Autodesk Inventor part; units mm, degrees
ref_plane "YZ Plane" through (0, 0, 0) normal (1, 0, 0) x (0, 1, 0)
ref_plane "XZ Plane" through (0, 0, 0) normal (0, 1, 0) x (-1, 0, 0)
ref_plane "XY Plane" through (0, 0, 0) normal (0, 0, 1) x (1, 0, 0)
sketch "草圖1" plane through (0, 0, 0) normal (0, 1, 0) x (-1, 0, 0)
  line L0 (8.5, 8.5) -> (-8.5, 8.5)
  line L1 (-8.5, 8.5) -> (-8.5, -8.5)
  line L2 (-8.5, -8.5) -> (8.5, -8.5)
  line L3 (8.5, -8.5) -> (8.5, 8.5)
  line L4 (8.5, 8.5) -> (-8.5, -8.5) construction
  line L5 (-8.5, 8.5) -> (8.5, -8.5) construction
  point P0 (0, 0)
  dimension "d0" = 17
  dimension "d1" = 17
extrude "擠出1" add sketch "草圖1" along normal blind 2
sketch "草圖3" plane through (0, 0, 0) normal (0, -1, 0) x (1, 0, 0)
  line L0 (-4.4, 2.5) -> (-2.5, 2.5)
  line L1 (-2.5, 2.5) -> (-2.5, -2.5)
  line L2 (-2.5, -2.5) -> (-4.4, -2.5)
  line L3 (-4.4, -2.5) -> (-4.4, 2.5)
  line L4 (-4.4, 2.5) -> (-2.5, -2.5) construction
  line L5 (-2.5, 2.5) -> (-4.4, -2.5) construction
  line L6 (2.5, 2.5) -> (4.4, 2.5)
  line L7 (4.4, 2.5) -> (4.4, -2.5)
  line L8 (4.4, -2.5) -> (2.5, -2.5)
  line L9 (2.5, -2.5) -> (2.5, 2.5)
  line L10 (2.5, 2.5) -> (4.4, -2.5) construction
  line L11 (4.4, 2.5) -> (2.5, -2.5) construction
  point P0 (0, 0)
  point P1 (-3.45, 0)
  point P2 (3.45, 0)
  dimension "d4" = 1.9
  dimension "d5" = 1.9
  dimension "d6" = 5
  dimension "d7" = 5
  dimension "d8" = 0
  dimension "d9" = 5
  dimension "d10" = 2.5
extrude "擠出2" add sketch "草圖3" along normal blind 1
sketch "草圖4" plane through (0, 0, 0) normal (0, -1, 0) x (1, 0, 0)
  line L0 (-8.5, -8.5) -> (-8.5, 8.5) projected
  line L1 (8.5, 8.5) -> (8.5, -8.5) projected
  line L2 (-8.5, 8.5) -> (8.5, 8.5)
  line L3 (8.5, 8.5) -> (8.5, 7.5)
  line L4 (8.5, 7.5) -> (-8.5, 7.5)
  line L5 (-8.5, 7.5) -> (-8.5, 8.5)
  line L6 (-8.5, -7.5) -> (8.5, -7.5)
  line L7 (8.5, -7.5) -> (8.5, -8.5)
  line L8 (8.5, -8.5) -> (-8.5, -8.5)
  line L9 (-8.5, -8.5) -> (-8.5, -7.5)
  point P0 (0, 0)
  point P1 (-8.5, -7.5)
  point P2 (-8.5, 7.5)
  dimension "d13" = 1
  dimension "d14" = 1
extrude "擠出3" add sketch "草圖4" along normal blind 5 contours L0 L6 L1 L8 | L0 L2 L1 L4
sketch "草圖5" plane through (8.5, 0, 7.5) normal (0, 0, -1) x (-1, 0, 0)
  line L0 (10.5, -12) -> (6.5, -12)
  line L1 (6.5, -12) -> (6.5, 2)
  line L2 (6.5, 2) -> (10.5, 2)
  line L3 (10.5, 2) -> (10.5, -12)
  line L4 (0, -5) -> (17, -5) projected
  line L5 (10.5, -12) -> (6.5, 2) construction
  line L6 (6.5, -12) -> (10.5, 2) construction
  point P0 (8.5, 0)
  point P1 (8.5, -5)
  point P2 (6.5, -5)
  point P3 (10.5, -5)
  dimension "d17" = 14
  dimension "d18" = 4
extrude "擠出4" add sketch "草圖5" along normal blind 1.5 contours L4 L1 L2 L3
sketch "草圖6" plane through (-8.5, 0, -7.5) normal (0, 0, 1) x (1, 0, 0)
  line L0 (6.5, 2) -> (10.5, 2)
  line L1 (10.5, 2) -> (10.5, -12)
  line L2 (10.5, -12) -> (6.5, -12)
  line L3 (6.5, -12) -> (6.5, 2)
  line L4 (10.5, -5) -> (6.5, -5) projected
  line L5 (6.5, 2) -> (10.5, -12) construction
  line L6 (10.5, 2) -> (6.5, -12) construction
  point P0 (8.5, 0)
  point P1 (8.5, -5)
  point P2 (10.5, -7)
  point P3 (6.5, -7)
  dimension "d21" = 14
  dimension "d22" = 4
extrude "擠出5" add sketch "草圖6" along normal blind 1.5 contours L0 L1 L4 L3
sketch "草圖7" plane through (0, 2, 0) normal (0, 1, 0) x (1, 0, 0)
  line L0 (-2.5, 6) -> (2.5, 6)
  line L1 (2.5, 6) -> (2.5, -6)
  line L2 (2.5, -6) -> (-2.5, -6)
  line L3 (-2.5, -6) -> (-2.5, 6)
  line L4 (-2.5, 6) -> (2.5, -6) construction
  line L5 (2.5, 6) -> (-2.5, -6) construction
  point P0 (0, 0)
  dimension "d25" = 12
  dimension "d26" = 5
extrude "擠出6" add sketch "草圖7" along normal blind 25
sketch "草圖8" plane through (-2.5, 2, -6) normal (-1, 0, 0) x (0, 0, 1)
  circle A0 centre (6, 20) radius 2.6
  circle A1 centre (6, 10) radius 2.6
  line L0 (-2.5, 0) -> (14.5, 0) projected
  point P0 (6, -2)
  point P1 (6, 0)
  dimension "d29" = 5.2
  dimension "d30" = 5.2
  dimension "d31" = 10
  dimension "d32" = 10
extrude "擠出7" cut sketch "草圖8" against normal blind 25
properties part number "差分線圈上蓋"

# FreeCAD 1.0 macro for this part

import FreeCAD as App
import Part
import Sketcher
from FreeCAD import Vector


def add_polygon(sketch, points):
    """Adds a closed chain of lines whose ends are joined by coincident constraints."""
    first, n = sketch.GeometryCount, len(points)
    for a, b in zip(points, points[1:] + points[:1]):
        sketch.addGeometry(Part.LineSegment(App.Vector(*a, 0), App.Vector(*b, 0)), False)
    for i in range(n):
        sketch.addConstraint(Sketcher.Constraint("Coincident", first + i, 2, first + (i + 1) % n, 1))

doc = App.newDocument("Part")
body = doc.addObject("PartDesign::Body", "Body")

sketch1 = body.newObject("Sketcher::SketchObject", "Sketch")
sketch1.AttachmentSupport = (doc.getObject("XZ_Plane"), [""])
sketch1.MapMode = "FlatFace"
add_polygon(sketch1, [(-8.5, -8.5), (-8.5, 8.5), (8.5, 8.5), (8.5, -8.5)])
sketch1.addConstraint([
    Sketcher.Constraint("Vertical", 0),
    Sketcher.Constraint("Horizontal", 1),
    Sketcher.Constraint("Vertical", 2),
    Sketcher.Constraint("Horizontal", 3),
    Sketcher.Constraint("Symmetric", 0, 2, 2, 2, -1, 1),
    Sketcher.Constraint("Equal", 3, 0),
    Sketcher.Constraint("DistanceX", 1, 1, 1, 2, 17.0),
])
pad1 = body.newObject("PartDesign::Pad", "Pad")
pad1.Profile = sketch1
pad1.Length = 2
pad1.Reversed = True

sketch2 = body.newObject("Sketcher::SketchObject", "Sketch001")
sketch2.AttachmentSupport = (doc.getObject("XZ_Plane"), [""])
sketch2.MapMode = "FlatFace"
add_polygon(sketch2, [(-2.5, 2.5), (-4.4, 2.5), (-4.4, -2.5), (-2.5, -2.5)])
add_polygon(sketch2, [(4.4, 2.5), (2.5, 2.5), (2.5, -2.5), (4.4, -2.5)])
sketch2.addConstraint([
    Sketcher.Constraint("Horizontal", 0),
    Sketcher.Constraint("Vertical", 1),
    Sketcher.Constraint("Horizontal", 2),
    Sketcher.Constraint("Vertical", 3),
    Sketcher.Constraint("Horizontal", 4),
    Sketcher.Constraint("Vertical", 5),
    Sketcher.Constraint("Horizontal", 6),
    Sketcher.Constraint("Vertical", 7),
    Sketcher.Constraint("Symmetric", 2, 2, 4, 2, -1, 1),
    Sketcher.Constraint("Symmetric", 0, 2, 6, 2, -1, 1),
    Sketcher.Constraint("Horizontal", 3, 2, 4, 2),
    Sketcher.Constraint("DistanceY", 1, 2, 1, 1, 5.0),
    Sketcher.Constraint("DistanceX", 0, 2, 0, 1, 1.9),
    Sketcher.Constraint("DistanceX", 3, 2, 4, 2, 5.0),
])
pad2 = body.newObject("PartDesign::Pad", "Pad001")
pad2.Profile = sketch2
pad2.Length = 1

sketch3 = body.newObject("Sketcher::SketchObject", "Sketch002")
sketch3.AttachmentSupport = (doc.getObject("XZ_Plane"), [""])
sketch3.MapMode = "FlatFace"
add_polygon(sketch3, [(-8.5, -7.5), (-8.5, -8.5), (8.5, -8.5), (8.5, -7.5)])
add_polygon(sketch3, [(-8.5, 8.5), (-8.5, 7.5), (8.5, 7.5), (8.5, 8.5)])
sketch3.addConstraint([
    Sketcher.Constraint("Vertical", 0),
    Sketcher.Constraint("Horizontal", 1),
    Sketcher.Constraint("Vertical", 2),
    Sketcher.Constraint("Horizontal", 3),
    Sketcher.Constraint("Vertical", 4),
    Sketcher.Constraint("Horizontal", 5),
    Sketcher.Constraint("Vertical", 6),
    Sketcher.Constraint("Horizontal", 7),
    Sketcher.Constraint("Symmetric", 2, 2, 4, 2, -1, 1),
    Sketcher.Constraint("Symmetric", 0, 2, 6, 2, -1, 1),
    Sketcher.Constraint("Vertical", 3, 2, 4, 2),
    Sketcher.Constraint("DistanceY", 0, 2, 0, 1, 1.0),
    Sketcher.Constraint("DistanceX", 1, 1, 1, 2, 17.0),
    Sketcher.Constraint("DistanceY", 3, 2, 4, 2, 15.0),
])
pad3 = body.newObject("PartDesign::Pad", "Pad002")
pad3.Profile = sketch3
pad3.Length = 5

sketch4 = body.newObject("Sketcher::SketchObject", "Sketch003")
sketch4.AttachmentSupport = (doc.getObject("XY_Plane"), [""])
sketch4.MapMode = "FlatFace"
sketch4.AttachmentOffset = App.Placement(Vector(0, 0, 7.5), App.Rotation())
add_polygon(sketch4, [(2, -5), (-2, -5), (-2, 2), (2, 2)])
sketch4.addConstraint([
    Sketcher.Constraint("Horizontal", 0),
    Sketcher.Constraint("Vertical", 1),
    Sketcher.Constraint("Horizontal", 2),
    Sketcher.Constraint("Vertical", 3),
    Sketcher.Constraint("DistanceX", 0, 2, 0, 1, 4.0),
    Sketcher.Constraint("DistanceY", 1, 1, 1, 2, 7.0),
    Sketcher.Constraint("DistanceX", 0, 2, -1, 1, 2.0),
    Sketcher.Constraint("DistanceY", 0, 2, -1, 1, 5.0),
])
pad4 = body.newObject("PartDesign::Pad", "Pad003")
pad4.Profile = sketch4
pad4.Length = 1.5
pad4.Reversed = True

sketch5 = body.newObject("Sketcher::SketchObject", "Sketch004")
sketch5.AttachmentSupport = (doc.getObject("XY_Plane"), [""])
sketch5.MapMode = "FlatFace"
sketch5.AttachmentOffset = App.Placement(Vector(0, 0, -7.5), App.Rotation())
add_polygon(sketch5, [(2, 2), (-2, 2), (-2, -5), (2, -5)])
sketch5.addConstraint([
    Sketcher.Constraint("Horizontal", 0),
    Sketcher.Constraint("Vertical", 1),
    Sketcher.Constraint("Horizontal", 2),
    Sketcher.Constraint("Vertical", 3),
    Sketcher.Constraint("DistanceX", 0, 2, 0, 1, 4.0),
    Sketcher.Constraint("DistanceY", 1, 2, 1, 1, 7.0),
    Sketcher.Constraint("DistanceX", 0, 2, -1, 1, 2.0),
    Sketcher.Constraint("DistanceY", -1, 1, 0, 2, 2.0),
])
pad5 = body.newObject("PartDesign::Pad", "Pad004")
pad5.Profile = sketch5
pad5.Length = 1.5

sketch6 = body.newObject("Sketcher::SketchObject", "Sketch005")
sketch6.AttachmentSupport = (doc.getObject("XZ_Plane"), [""])
sketch6.MapMode = "FlatFace"
sketch6.AttachmentOffset = App.Placement(Vector(0, 0, -2), App.Rotation())
add_polygon(sketch6, [(2.5, -6), (-2.5, -6), (-2.5, 6), (2.5, 6)])
sketch6.addConstraint([
    Sketcher.Constraint("Horizontal", 0),
    Sketcher.Constraint("Vertical", 1),
    Sketcher.Constraint("Horizontal", 2),
    Sketcher.Constraint("Vertical", 3),
    Sketcher.Constraint("Symmetric", 0, 2, 2, 2, -1, 1),
    Sketcher.Constraint("DistanceX", 0, 2, 0, 1, 5.0),
    Sketcher.Constraint("DistanceY", 1, 1, 1, 2, 12.0),
])
pad6 = body.newObject("PartDesign::Pad", "Pad005")
pad6.Profile = sketch6
pad6.Length = 25
pad6.Reversed = True

sketch7 = body.newObject("Sketcher::SketchObject", "Sketch006")
sketch7.AttachmentSupport = (doc.getObject("YZ_Plane"), [""])
sketch7.MapMode = "FlatFace"
sketch7.AttachmentOffset = App.Placement(Vector(0, 0, -2.5), App.Rotation())
sketch7.addGeometry([
    Part.Circle(Vector(22, 0, 0), Vector(0, 0, 1), 2.6),
    Part.Circle(Vector(12, 0, 0), Vector(0, 0, 1), 2.6),
], False)
sketch7.addConstraint([
    Sketcher.Constraint("Equal", 0, 1),
    Sketcher.Constraint("PointOnObject", 0, 3, -1),
    Sketcher.Constraint("PointOnObject", 1, 3, -1),
    Sketcher.Constraint("Diameter", 0, 5.2),
    Sketcher.Constraint("DistanceX", 1, 3, 0, 3, 10.0),
    Sketcher.Constraint("DistanceX", -1, 1, 0, 3, 22.0),
])
pocket1 = body.newObject("PartDesign::Pocket", "Pocket")
pocket1.Profile = sketch7
pocket1.Length = 25
pocket1.Reversed = True

doc.recompute()
